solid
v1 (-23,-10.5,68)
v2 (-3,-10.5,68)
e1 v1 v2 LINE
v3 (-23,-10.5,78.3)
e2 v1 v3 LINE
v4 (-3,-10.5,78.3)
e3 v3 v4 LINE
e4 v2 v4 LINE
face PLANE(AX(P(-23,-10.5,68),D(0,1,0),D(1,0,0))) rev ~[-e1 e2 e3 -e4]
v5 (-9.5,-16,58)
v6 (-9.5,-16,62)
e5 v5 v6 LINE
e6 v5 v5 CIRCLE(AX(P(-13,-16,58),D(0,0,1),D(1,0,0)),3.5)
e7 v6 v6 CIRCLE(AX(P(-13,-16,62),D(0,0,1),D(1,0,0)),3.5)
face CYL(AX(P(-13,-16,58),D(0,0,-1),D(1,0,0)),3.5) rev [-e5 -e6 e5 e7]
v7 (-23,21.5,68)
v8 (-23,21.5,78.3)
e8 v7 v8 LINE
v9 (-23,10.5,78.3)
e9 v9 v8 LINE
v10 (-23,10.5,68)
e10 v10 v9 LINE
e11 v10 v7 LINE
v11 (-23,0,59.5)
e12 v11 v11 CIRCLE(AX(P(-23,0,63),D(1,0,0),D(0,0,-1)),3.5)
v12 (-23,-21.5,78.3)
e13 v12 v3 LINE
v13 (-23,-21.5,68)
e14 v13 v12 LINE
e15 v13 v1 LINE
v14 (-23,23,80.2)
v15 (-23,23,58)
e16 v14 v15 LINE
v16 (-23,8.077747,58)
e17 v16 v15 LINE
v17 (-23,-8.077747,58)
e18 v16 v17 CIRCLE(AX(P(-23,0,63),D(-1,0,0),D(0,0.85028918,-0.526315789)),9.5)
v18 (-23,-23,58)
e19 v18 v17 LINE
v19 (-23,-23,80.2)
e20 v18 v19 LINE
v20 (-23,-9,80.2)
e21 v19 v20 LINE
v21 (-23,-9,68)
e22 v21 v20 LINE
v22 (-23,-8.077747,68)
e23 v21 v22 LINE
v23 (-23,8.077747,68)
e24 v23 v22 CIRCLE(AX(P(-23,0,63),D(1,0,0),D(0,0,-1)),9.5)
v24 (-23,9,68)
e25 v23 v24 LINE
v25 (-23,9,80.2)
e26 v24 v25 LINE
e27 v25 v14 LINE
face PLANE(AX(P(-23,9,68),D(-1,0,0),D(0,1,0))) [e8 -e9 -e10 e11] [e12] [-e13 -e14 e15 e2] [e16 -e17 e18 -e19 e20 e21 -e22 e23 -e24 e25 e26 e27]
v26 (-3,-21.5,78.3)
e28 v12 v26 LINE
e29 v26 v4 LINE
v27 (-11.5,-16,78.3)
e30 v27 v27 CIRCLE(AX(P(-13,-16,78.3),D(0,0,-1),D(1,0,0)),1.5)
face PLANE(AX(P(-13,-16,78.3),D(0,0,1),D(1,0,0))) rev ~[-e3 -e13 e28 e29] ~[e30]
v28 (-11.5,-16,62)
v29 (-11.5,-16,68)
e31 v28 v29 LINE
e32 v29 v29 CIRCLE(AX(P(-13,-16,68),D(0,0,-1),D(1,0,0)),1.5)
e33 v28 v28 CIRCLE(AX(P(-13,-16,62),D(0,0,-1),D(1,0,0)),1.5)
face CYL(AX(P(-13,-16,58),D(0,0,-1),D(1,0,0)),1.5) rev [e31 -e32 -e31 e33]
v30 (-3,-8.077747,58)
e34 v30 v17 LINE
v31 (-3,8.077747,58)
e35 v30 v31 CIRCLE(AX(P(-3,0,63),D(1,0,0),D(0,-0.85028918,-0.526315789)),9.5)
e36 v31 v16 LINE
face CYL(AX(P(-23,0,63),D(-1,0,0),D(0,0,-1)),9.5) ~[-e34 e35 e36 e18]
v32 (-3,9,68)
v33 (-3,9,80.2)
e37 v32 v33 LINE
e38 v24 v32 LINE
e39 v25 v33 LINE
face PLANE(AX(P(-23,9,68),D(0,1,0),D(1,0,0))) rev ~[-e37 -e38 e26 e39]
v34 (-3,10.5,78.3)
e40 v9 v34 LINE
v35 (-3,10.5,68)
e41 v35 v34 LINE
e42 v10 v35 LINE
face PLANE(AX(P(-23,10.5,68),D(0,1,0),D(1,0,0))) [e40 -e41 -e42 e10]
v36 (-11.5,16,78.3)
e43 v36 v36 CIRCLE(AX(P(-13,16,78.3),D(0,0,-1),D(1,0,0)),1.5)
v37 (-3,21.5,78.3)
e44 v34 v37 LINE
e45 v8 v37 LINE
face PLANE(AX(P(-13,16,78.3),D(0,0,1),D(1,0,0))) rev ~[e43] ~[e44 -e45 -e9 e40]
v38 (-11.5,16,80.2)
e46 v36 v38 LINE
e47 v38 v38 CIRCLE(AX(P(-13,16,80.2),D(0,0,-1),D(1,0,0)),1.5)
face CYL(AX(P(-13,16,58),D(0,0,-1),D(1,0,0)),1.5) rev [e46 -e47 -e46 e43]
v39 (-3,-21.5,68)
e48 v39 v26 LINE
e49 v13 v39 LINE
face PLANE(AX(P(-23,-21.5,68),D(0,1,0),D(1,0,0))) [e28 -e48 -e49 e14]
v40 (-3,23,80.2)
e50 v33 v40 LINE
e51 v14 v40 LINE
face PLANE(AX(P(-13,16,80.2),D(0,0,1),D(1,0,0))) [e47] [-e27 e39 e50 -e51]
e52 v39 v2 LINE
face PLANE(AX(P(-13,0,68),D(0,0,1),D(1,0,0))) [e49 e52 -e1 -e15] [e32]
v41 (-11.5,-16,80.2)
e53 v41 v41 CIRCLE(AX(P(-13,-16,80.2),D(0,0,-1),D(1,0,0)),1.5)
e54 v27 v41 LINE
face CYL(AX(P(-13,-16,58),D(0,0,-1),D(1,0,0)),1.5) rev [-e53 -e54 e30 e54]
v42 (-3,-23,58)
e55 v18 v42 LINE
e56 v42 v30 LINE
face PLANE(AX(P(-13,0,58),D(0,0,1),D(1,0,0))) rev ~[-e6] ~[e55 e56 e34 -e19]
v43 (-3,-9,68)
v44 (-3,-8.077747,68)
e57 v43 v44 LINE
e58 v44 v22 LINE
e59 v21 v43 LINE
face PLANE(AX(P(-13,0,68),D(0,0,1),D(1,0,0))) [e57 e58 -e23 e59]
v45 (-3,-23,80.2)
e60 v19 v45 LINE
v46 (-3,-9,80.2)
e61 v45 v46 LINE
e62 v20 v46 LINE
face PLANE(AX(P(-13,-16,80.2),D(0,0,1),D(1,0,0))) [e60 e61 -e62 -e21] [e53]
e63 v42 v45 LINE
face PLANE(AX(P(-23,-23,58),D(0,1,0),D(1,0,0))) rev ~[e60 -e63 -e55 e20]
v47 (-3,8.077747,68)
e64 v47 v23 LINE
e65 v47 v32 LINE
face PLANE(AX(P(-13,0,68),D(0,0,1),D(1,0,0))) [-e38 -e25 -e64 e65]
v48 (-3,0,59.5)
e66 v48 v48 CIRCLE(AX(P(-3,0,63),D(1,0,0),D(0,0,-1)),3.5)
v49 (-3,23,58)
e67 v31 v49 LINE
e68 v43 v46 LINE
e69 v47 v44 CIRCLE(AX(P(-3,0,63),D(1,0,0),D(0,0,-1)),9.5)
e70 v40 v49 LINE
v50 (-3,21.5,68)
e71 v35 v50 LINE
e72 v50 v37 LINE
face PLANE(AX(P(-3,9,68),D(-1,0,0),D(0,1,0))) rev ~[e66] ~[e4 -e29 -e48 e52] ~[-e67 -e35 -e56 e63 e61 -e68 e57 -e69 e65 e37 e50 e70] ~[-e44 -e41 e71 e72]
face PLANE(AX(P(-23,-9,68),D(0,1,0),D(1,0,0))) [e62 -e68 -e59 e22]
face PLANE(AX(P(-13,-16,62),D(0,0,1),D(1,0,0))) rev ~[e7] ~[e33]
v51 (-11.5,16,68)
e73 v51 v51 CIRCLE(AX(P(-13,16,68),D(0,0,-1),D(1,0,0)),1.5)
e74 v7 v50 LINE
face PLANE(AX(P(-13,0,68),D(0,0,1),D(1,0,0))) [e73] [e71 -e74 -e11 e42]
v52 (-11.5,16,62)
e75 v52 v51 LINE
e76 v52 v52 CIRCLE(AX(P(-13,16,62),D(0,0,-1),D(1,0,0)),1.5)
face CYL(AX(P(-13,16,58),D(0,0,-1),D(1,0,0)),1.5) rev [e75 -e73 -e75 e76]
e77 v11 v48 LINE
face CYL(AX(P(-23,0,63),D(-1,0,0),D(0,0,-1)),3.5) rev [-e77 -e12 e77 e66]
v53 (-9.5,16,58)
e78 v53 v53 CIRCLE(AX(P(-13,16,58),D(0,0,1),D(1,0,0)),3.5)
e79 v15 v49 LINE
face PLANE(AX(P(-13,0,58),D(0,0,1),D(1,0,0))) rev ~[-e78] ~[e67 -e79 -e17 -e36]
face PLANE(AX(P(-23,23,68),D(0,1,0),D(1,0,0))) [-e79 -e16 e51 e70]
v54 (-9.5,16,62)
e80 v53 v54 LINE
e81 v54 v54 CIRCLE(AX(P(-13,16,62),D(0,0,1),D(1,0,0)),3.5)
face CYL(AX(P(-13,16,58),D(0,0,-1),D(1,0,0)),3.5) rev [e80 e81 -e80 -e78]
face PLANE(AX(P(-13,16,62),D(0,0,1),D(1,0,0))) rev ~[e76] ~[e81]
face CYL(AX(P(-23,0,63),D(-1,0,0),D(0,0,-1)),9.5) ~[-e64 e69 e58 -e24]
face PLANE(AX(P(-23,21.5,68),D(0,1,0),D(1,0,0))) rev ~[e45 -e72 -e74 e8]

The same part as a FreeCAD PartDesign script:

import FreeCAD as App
import Part
import Sketcher
from FreeCAD import Vector
Q = App.Units.Quantity

doc = App.newDocument("Part")
params = doc.addObject("Spreadsheet::Sheet", "Params")
for row, (alias, value) in enumerate([
    ("sketch1_diameter", "7 mm"),
    ("pad1_length", "4 mm"),
    ("sketch2_diameter", "3 mm"),
    ("pad2_length", "25 mm"),
    ("sketch3_diameter", "7 mm"),
    ("pad3_length", "4 mm"),
    ("sketch4_diameter", "3 mm"),
    ("pad4_length", "25 mm"),
    ("sketch5_diameter", "7 mm"),
    ("pad5_length", "20 mm"),
    ("sketch6_width", "20 mm"),
    ("sketch6_height", "11 mm"),
    ("pad6_length", "10.3 mm"),
    ("sketch7_width", "20 mm"),
    ("sketch7_height", "11 mm"),
    ("pad7_length", "10.3 mm"),
    ("sketch8_width", "20 mm"),
    ("sketch8_height", "14 mm"),
    ("pad8_length", "12.2 mm"),
    ("sketch9_width", "20 mm"),
    ("sketch9_height", "14 mm"),
    ("pad9_length", "12.2 mm"),
    ("sketch10_width", "20 mm"),
    ("sketch10_height", "46 mm"),
    ("pad10_length", "10 mm"),
    ("sketch11_diameter", "19 mm"),
    ("pad11_length", "20 mm"),
], start=1):
    params.set(f"A{row}", alias)
    params.set(f"B{row}", "=" + value)
    params.setAlias(f"B{row}", alias)

body = doc.addObject("PartDesign::Body", "Body")

sketch1 = doc.addObject("Sketcher::SketchObject", "Sketch")
body.addObject(sketch1)
sketch1.AttachmentSupport = (doc.XY_Plane, [""])
sketch1.MapMode = "FlatFace"
sketch1.addGeometry(Part.Circle(Vector(0, 0, 0), Vector(0, 0, 1), 3.5), False)
sketch1.addConstraint([
    Sketcher.Constraint("Coincident", 0, 3, -1, 1),
    Sketcher.Constraint("Diameter", 0, Q("7 mm")),
])
sketch1.setExpression("Constraints[1]", "Params.sketch1_diameter")
pad1 = doc.addObject("PartDesign::Pad", "Pad")
body.addObject(pad1)
pad1.Profile = sketch1
pad1.setExpression("Length", "Params.pad1_length")
body2 = doc.addObject("PartDesign::Body", "Body001")

sketch2 = doc.addObject("Sketcher::SketchObject", "Sketch001")
body2.addObject(sketch2)
sketch2.AttachmentSupport = (doc.getObject("XY_Plane001"), [""])
sketch2.MapMode = "FlatFace"
sketch2.addGeometry(Part.Circle(Vector(0, 0, 0), Vector(0, 0, 1), 1.5), False)
sketch2.addConstraint([
    Sketcher.Constraint("Coincident", 0, 3, -1, 1),
    Sketcher.Constraint("Diameter", 0, Q("3 mm")),
])
sketch2.setExpression("Constraints[1]", "Params.sketch2_diameter")
pad2 = doc.addObject("PartDesign::Pad", "Pad001")
body2.addObject(pad2)
pad2.Profile = sketch2
pad2.setExpression("Length", "Params.pad2_length")
doc.recompute()

boolean = doc.addObject("PartDesign::Boolean", "Boolean")
body2.addObject(boolean)
boolean.Type = "Fuse"
boolean.addObjects([body])
body3 = doc.addObject("PartDesign::Body", "Body002")
doc.recompute()

body2.Placement = App.Placement(Vector(-13, 16, 58), App.Rotation(Vector(0, 0, 1), 0))
boolean2 = doc.addObject("PartDesign::Boolean", "Boolean001")
body3.addObject(boolean2)
boolean2.Type = "Fuse"
boolean2.addObjects([body2])
body4 = doc.addObject("PartDesign::Body", "Body003")

sketch3 = doc.addObject("Sketcher::SketchObject", "Sketch002")
body4.addObject(sketch3)
sketch3.AttachmentSupport = (doc.getObject("XY_Plane003"), [""])
sketch3.MapMode = "FlatFace"
sketch3.addGeometry(Part.Circle(Vector(0, 0, 0), Vector(0, 0, 1), 3.5), False)
sketch3.addConstraint([
    Sketcher.Constraint("Coincident", 0, 3, -1, 1),
    Sketcher.Constraint("Diameter", 0, Q("7 mm")),
])
sketch3.setExpression("Constraints[1]", "Params.sketch3_diameter")
pad3 = doc.addObject("PartDesign::Pad", "Pad002")
body4.addObject(pad3)
pad3.Profile = sketch3
pad3.setExpression("Length", "Params.pad3_length")
body5 = doc.addObject("PartDesign::Body", "Body004")

sketch4 = doc.addObject("Sketcher::SketchObject", "Sketch003")
body5.addObject(sketch4)
sketch4.AttachmentSupport = (doc.getObject("XY_Plane004"), [""])
sketch4.MapMode = "FlatFace"
sketch4.addGeometry(Part.Circle(Vector(0, 0, 0), Vector(0, 0, 1), 1.5), False)
sketch4.addConstraint([
    Sketcher.Constraint("Coincident", 0, 3, -1, 1),
    Sketcher.Constraint("Diameter", 0, Q("3 mm")),
])
sketch4.setExpression("Constraints[1]", "Params.sketch4_diameter")
pad4 = doc.addObject("PartDesign::Pad", "Pad003")
body5.addObject(pad4)
pad4.Profile = sketch4
pad4.setExpression("Length", "Params.pad4_length")
doc.recompute()

boolean3 = doc.addObject("PartDesign::Boolean", "Boolean002")
body5.addObject(boolean3)
boolean3.Type = "Fuse"
boolean3.addObjects([body4])
body6 = doc.addObject("PartDesign::Body", "Body005")
body6.AllowCompound = True
doc.recompute()

body5.Placement = App.Placement(Vector(-13, -16, 58), App.Rotation(Vector(0, 0, 1), 0))
boolean4 = doc.addObject("PartDesign::Boolean", "Boolean003")
body6.addObject(boolean4)
boolean4.Type = "Fuse"
boolean4.addObjects([body5])
doc.recompute()

boolean5 = doc.addObject("PartDesign::Boolean", "Boolean004")
body6.addObject(boolean5)
boolean5.Type = "Fuse"
boolean5.addObjects([body3])
body7 = doc.addObject("PartDesign::Body", "Body006")

sketch5 = doc.addObject("Sketcher::SketchObject", "Sketch004")
body7.addObject(sketch5)
sketch5.AttachmentSupport = (doc.getObject("YZ_Plane006"), [""])
sketch5.MapMode = "FlatFace"
sketch5.AttachmentOffset = App.Placement(Vector(0, 0, -23), App.Rotation())
sketch5.addGeometry(Part.Circle(Vector(0, 63, 0), Vector(0, 0, 1), 3.5), False)
sketch5.addConstraint([
    Sketcher.Constraint("PointOnObject", 0, 3, -2),
    Sketcher.Constraint("Diameter", 0, Q("7 mm")),
    Sketcher.Constraint("DistanceY", -1, 1, 0, 3, Q("63 mm")),
])
sketch5.setExpression("Constraints[1]", "Params.sketch5_diameter")
pad5 = doc.addObject("PartDesign::Pad", "Pad004")
body7.addObject(pad5)
pad5.Profile = sketch5
pad5.setExpression("Length", "Params.pad5_length")
body8 = doc.addObject("PartDesign::Body", "Body007")

sketch6 = doc.addObject("Sketcher::SketchObject", "Sketch005")
body8.addObject(sketch6)
sketch6.AttachmentSupport = (doc.getObject("XY_Plane007"), [""])
sketch6.MapMode = "FlatFace"
sketch6.AttachmentOffset = App.Placement(Vector(0, 0, 68), App.Rotation())
sketch6.addGeometry([
    Part.LineSegment(Vector(-23, -10, 0), Vector(-23, -22, 0)),
    Part.LineSegment(Vector(-23, -22, 0), Vector(-3, -22, 0)),
    Part.LineSegment(Vector(-3, -22, 0), Vector(-3, -10, 0)),
    Part.LineSegment(Vector(-3, -10, 0), Vector(-23, -10, 0)),
], False)
sketch6.addConstraint([
    Sketcher.Constraint("Coincident", 0, 2, 1, 1),
    Sketcher.Constraint("Coincident", 1, 2, 2, 1),
    Sketcher.Constraint("Coincident", 2, 2, 3, 1),
    Sketcher.Constraint("Coincident", 3, 2, 0, 1),
    Sketcher.Constraint("Vertical", 0),
    Sketcher.Constraint("Horizontal", 1),
    Sketcher.Constraint("Vertical", 2),
    Sketcher.Constraint("Horizontal", 3),
    Sketcher.Constraint("DistanceX", 1, 1, 1, 2, Q("20 mm")),
    Sketcher.Constraint("DistanceY", 0, 2, 0, 1, Q("11 mm")),
    Sketcher.Constraint("DistanceX", 0, 2, -1, 1, Q("23 mm")),
    Sketcher.Constraint("DistanceY", 0, 2, -1, 1, Q("21.5 mm")),
])
sketch6.setExpression("Constraints[8]", "Params.sketch6_width")
sketch6.setExpression("Constraints[9]", "Params.sketch6_height")
pad6 = doc.addObject("PartDesign::Pad", "Pad005")
body8.addObject(pad6)
pad6.Profile = sketch6
pad6.setExpression("Length", "Params.pad6_length")
body9 = doc.addObject("PartDesign::Body", "Body008")
body9.AllowCompound = True

sketch7 = doc.addObject("Sketcher::SketchObject", "Sketch006")
body9.addObject(sketch7)
sketch7.AttachmentSupport = (doc.getObject("XY_Plane008"), [""])
sketch7.MapMode = "FlatFace"
sketch7.AttachmentOffset = App.Placement(Vector(0, 0, 68), App.Rotation())
sketch7.addGeometry([
    Part.LineSegment(Vector(-23, 22, 0), Vector(-23, 10, 0)),
    Part.LineSegment(Vector(-23, 10, 0), Vector(-3, 10, 0)),
    Part.LineSegment(Vector(-3, 10, 0), Vector(-3, 22, 0)),
    Part.LineSegment(Vector(-3, 22, 0), Vector(-23, 22, 0)),
], False)
sketch7.addConstraint([
    Sketcher.Constraint("Coincident", 0, 2, 1, 1),
    Sketcher.Constraint("Coincident", 1, 2, 2, 1),
    Sketcher.Constraint("Coincident", 2, 2, 3, 1),
    Sketcher.Constraint("Coincident", 3, 2, 0, 1),
    Sketcher.Constraint("Vertical", 0),
    Sketcher.Constraint("Horizontal", 1),
    Sketcher.Constraint("Vertical", 2),
    Sketcher.Constraint("Horizontal", 3),
    Sketcher.Constraint("DistanceX", 1, 1, 1, 2, Q("20 mm")),
    Sketcher.Constraint("DistanceY", 0, 2, 0, 1, Q("11 mm")),
    Sketcher.Constraint("DistanceX", 0, 2, -1, 1, Q("23 mm")),
    Sketcher.Constraint("DistanceY", -1, 1, 0, 2, Q("10.5 mm")),
])
sketch7.setExpression("Constraints[8]", "Params.sketch7_width")
sketch7.setExpression("Constraints[9]", "Params.sketch7_height")
pad7 = doc.addObject("PartDesign::Pad", "Pad006")
body9.addObject(pad7)
pad7.Profile = sketch7
pad7.setExpression("Length", "Params.pad7_length")
doc.recompute()

boolean6 = doc.addObject("PartDesign::Boolean", "Boolean005")
body9.addObject(boolean6)
boolean6.Type = "Fuse"
boolean6.addObjects([body8])
body10 = doc.addObject("PartDesign::Body", "Body009")

sketch8 = doc.addObject("Sketcher::SketchObject", "Sketch007")
body10.addObject(sketch8)
sketch8.AttachmentSupport = (doc.getObject("XY_Plane009"), [""])
sketch8.MapMode = "FlatFace"
sketch8.AttachmentOffset = App.Placement(Vector(0, 0, 68), App.Rotation())
sketch8.addGeometry([
    Part.LineSegment(Vector(-23, 23, 0), Vector(-23, 9, 0)),
    Part.LineSegment(Vector(-23, 9, 0), Vector(-3, 9, 0)),
    Part.LineSegment(Vector(-3, 9, 0), Vector(-3, 23, 0)),
    Part.LineSegment(Vector(-3, 23, 0), Vector(-23, 23, 0)),
], False)
sketch8.addConstraint([
    Sketcher.Constraint("Coincident", 0, 2, 1, 1),
    Sketcher.Constraint("Coincident", 1, 2, 2, 1),
    Sketcher.Constraint("Coincident", 2, 2, 3, 1),
    Sketcher.Constraint("Coincident", 3, 2, 0, 1),
    Sketcher.Constraint("Vertical", 0),
    Sketcher.Constraint("Horizontal", 1),
    Sketcher.Constraint("Vertical", 2),
    Sketcher.Constraint("Horizontal", 3),
    Sketcher.Constraint("DistanceX", 1, 1, 1, 2, Q("20 mm")),
    Sketcher.Constraint("DistanceY", 0, 2, 0, 1, Q("14 mm")),
    Sketcher.Constraint("DistanceX", 0, 2, -1, 1, Q("23 mm")),
    Sketcher.Constraint("DistanceY", -1, 1, 0, 2, Q("9 mm")),
])
sketch8.setExpression("Constraints[8]", "Params.sketch8_width")
sketch8.setExpression("Constraints[9]", "Params.sketch8_height")
pad8 = doc.addObject("PartDesign::Pad", "Pad007")
body10.addObject(pad8)
pad8.Profile = sketch8
pad8.setExpression("Length", "Params.pad8_length")
body11 = doc.addObject("PartDesign::Body", "Body010")
body11.AllowCompound = True

sketch9 = doc.addObject("Sketcher::SketchObject", "Sketch008")
body11.addObject(sketch9)
sketch9.AttachmentSupport = (doc.getObject("XY_Plane010"), [""])
sketch9.MapMode = "FlatFace"
sketch9.AttachmentOffset = App.Placement(Vector(0, 0, 68), App.Rotation())
sketch9.addGeometry([
    Part.LineSegment(Vector(-23, -9, 0), Vector(-23, -23, 0)),
    Part.LineSegment(Vector(-23, -23, 0), Vector(-3, -23, 0)),
    Part.LineSegment(Vector(-3, -23, 0), Vector(-3, -9, 0)),
    Part.LineSegment(Vector(-3, -9, 0), Vector(-23, -9, 0)),
], False)
sketch9.addConstraint([
    Sketcher.Constraint("Coincident", 0, 2, 1, 1),
    Sketcher.Constraint("Coincident", 1, 2, 2, 1),
    Sketcher.Constraint("Coincident", 2, 2, 3, 1),
    Sketcher.Constraint("Coincident", 3, 2, 0, 1),
    Sketcher.Constraint("Vertical", 0),
    Sketcher.Constraint("Horizontal", 1),
    Sketcher.Constraint("Vertical", 2),
    Sketcher.Constraint("Horizontal", 3),
    Sketcher.Constraint("DistanceX", 1, 1, 1, 2, Q("20 mm")),
    Sketcher.Constraint("DistanceY", 0, 2, 0, 1, Q("14 mm")),
    Sketcher.Constraint("DistanceX", 0, 2, -1, 1, Q("23 mm")),
    Sketcher.Constraint("DistanceY", 0, 2, -1, 1, Q("23 mm")),
])
sketch9.setExpression("Constraints[8]", "Params.sketch9_width")
sketch9.setExpression("Constraints[9]", "Params.sketch9_height")
pad9 = doc.addObject("PartDesign::Pad", "Pad008")
body11.addObject(pad9)
pad9.Profile = sketch9
pad9.setExpression("Length", "Params.pad9_length")
doc.recompute()

boolean7 = doc.addObject("PartDesign::Boolean", "Boolean006")
body11.addObject(boolean7)
boolean7.Type = "Fuse"
boolean7.addObjects([body10])
doc.recompute()

boolean8 = doc.addObject("PartDesign::Boolean", "Boolean007")
body11.addObject(boolean8)
boolean8.Type = "Cut"
boolean8.addObjects([body9])
body12 = doc.addObject("PartDesign::Body", "Body011")

sketch10 = doc.addObject("Sketcher::SketchObject", "Sketch009")
body12.addObject(sketch10)
sketch10.AttachmentSupport = (doc.getObject("XY_Plane011"), [""])
sketch10.MapMode = "FlatFace"
sketch10.AttachmentOffset = App.Placement(Vector(0, 0, 58), App.Rotation())
sketch10.addGeometry([
    Part.LineSegment(Vector(-23, 23, 0), Vector(-23, -23, 0)),
    Part.LineSegment(Vector(-23, -23, 0), Vector(-3, -23, 0)),
    Part.LineSegment(Vector(-3, -23, 0), Vector(-3, 23, 0)),
    Part.LineSegment(Vector(-3, 23, 0), Vector(-23, 23, 0)),
], False)
sketch10.addConstraint([
    Sketcher.Constraint("Coincident", 0, 2, 1, 1),
    Sketcher.Constraint("Coincident", 1, 2, 2, 1),
    Sketcher.Constraint("Coincident", 2, 2, 3, 1),
    Sketcher.Constraint("Coincident", 3, 2, 0, 1),
    Sketcher.Constraint("Vertical", 0),
    Sketcher.Constraint("Horizontal", 1),
    Sketcher.Constraint("Vertical", 2),
    Sketcher.Constraint("Horizontal", 3),
    Sketcher.Constraint("DistanceX", 1, 1, 1, 2, Q("20 mm")),
    Sketcher.Constraint("DistanceY", 0, 2, 0, 1, Q("46 mm")),
    Sketcher.Constraint("DistanceX", 0, 2, -1, 1, Q("23 mm")),
    Sketcher.Constraint("DistanceY", 0, 2, -1, 1, Q("23 mm")),
])
sketch10.setExpression("Constraints[8]", "Params.sketch10_width")
sketch10.setExpression("Constraints[9]", "Params.sketch10_height")
pad10 = doc.addObject("PartDesign::Pad", "Pad009")
body12.addObject(pad10)
pad10.Profile = sketch10
pad10.setExpression("Length", "Params.pad10_length")
doc.recompute()

boolean9 = doc.addObject("PartDesign::Boolean", "Boolean008")
body12.addObject(boolean9)
boolean9.Type = "Fuse"
boolean9.addObjects([body11])
body13 = doc.addObject("PartDesign::Body", "Body012")

sketch11 = doc.addObject("Sketcher::SketchObject", "Sketch010")
body13.addObject(sketch11)
sketch11.AttachmentSupport = (doc.getObject("YZ_Plane012"), [""])
sketch11.MapMode = "FlatFace"
sketch11.AttachmentOffset = App.Placement(Vector(0, 0, -23), App.Rotation())
sketch11.addGeometry(Part.Circle(Vector(0, 63, 0), Vector(0, 0, 1), 10), False)
sketch11.addConstraint([
    Sketcher.Constraint("PointOnObject", 0, 3, -2),
    Sketcher.Constraint("Diameter", 0, Q("19 mm")),
    Sketcher.Constraint("DistanceY", -1, 1, 0, 3, Q("63 mm")),
])
sketch11.setExpression("Constraints[1]", "Params.sketch11_diameter")
pad11 = doc.addObject("PartDesign::Pad", "Pad010")
body13.addObject(pad11)
pad11.Profile = sketch11
pad11.setExpression("Length", "Params.pad11_length")
doc.recompute()

boolean10 = doc.addObject("PartDesign::Boolean", "Boolean009")
body13.addObject(boolean10)
boolean10.Type = "Fuse"
boolean10.addObjects([body12])
doc.recompute()

boolean11 = doc.addObject("PartDesign::Boolean", "Boolean010")
body13.addObject(boolean11)
boolean11.Type = "Cut"
boolean11.addObjects([body7])
doc.recompute()

boolean12 = doc.addObject("PartDesign::Boolean", "Boolean011")
body13.addObject(boolean12)
boolean12.Type = "Cut"
boolean12.addObjects([body6])

doc.recompute()
